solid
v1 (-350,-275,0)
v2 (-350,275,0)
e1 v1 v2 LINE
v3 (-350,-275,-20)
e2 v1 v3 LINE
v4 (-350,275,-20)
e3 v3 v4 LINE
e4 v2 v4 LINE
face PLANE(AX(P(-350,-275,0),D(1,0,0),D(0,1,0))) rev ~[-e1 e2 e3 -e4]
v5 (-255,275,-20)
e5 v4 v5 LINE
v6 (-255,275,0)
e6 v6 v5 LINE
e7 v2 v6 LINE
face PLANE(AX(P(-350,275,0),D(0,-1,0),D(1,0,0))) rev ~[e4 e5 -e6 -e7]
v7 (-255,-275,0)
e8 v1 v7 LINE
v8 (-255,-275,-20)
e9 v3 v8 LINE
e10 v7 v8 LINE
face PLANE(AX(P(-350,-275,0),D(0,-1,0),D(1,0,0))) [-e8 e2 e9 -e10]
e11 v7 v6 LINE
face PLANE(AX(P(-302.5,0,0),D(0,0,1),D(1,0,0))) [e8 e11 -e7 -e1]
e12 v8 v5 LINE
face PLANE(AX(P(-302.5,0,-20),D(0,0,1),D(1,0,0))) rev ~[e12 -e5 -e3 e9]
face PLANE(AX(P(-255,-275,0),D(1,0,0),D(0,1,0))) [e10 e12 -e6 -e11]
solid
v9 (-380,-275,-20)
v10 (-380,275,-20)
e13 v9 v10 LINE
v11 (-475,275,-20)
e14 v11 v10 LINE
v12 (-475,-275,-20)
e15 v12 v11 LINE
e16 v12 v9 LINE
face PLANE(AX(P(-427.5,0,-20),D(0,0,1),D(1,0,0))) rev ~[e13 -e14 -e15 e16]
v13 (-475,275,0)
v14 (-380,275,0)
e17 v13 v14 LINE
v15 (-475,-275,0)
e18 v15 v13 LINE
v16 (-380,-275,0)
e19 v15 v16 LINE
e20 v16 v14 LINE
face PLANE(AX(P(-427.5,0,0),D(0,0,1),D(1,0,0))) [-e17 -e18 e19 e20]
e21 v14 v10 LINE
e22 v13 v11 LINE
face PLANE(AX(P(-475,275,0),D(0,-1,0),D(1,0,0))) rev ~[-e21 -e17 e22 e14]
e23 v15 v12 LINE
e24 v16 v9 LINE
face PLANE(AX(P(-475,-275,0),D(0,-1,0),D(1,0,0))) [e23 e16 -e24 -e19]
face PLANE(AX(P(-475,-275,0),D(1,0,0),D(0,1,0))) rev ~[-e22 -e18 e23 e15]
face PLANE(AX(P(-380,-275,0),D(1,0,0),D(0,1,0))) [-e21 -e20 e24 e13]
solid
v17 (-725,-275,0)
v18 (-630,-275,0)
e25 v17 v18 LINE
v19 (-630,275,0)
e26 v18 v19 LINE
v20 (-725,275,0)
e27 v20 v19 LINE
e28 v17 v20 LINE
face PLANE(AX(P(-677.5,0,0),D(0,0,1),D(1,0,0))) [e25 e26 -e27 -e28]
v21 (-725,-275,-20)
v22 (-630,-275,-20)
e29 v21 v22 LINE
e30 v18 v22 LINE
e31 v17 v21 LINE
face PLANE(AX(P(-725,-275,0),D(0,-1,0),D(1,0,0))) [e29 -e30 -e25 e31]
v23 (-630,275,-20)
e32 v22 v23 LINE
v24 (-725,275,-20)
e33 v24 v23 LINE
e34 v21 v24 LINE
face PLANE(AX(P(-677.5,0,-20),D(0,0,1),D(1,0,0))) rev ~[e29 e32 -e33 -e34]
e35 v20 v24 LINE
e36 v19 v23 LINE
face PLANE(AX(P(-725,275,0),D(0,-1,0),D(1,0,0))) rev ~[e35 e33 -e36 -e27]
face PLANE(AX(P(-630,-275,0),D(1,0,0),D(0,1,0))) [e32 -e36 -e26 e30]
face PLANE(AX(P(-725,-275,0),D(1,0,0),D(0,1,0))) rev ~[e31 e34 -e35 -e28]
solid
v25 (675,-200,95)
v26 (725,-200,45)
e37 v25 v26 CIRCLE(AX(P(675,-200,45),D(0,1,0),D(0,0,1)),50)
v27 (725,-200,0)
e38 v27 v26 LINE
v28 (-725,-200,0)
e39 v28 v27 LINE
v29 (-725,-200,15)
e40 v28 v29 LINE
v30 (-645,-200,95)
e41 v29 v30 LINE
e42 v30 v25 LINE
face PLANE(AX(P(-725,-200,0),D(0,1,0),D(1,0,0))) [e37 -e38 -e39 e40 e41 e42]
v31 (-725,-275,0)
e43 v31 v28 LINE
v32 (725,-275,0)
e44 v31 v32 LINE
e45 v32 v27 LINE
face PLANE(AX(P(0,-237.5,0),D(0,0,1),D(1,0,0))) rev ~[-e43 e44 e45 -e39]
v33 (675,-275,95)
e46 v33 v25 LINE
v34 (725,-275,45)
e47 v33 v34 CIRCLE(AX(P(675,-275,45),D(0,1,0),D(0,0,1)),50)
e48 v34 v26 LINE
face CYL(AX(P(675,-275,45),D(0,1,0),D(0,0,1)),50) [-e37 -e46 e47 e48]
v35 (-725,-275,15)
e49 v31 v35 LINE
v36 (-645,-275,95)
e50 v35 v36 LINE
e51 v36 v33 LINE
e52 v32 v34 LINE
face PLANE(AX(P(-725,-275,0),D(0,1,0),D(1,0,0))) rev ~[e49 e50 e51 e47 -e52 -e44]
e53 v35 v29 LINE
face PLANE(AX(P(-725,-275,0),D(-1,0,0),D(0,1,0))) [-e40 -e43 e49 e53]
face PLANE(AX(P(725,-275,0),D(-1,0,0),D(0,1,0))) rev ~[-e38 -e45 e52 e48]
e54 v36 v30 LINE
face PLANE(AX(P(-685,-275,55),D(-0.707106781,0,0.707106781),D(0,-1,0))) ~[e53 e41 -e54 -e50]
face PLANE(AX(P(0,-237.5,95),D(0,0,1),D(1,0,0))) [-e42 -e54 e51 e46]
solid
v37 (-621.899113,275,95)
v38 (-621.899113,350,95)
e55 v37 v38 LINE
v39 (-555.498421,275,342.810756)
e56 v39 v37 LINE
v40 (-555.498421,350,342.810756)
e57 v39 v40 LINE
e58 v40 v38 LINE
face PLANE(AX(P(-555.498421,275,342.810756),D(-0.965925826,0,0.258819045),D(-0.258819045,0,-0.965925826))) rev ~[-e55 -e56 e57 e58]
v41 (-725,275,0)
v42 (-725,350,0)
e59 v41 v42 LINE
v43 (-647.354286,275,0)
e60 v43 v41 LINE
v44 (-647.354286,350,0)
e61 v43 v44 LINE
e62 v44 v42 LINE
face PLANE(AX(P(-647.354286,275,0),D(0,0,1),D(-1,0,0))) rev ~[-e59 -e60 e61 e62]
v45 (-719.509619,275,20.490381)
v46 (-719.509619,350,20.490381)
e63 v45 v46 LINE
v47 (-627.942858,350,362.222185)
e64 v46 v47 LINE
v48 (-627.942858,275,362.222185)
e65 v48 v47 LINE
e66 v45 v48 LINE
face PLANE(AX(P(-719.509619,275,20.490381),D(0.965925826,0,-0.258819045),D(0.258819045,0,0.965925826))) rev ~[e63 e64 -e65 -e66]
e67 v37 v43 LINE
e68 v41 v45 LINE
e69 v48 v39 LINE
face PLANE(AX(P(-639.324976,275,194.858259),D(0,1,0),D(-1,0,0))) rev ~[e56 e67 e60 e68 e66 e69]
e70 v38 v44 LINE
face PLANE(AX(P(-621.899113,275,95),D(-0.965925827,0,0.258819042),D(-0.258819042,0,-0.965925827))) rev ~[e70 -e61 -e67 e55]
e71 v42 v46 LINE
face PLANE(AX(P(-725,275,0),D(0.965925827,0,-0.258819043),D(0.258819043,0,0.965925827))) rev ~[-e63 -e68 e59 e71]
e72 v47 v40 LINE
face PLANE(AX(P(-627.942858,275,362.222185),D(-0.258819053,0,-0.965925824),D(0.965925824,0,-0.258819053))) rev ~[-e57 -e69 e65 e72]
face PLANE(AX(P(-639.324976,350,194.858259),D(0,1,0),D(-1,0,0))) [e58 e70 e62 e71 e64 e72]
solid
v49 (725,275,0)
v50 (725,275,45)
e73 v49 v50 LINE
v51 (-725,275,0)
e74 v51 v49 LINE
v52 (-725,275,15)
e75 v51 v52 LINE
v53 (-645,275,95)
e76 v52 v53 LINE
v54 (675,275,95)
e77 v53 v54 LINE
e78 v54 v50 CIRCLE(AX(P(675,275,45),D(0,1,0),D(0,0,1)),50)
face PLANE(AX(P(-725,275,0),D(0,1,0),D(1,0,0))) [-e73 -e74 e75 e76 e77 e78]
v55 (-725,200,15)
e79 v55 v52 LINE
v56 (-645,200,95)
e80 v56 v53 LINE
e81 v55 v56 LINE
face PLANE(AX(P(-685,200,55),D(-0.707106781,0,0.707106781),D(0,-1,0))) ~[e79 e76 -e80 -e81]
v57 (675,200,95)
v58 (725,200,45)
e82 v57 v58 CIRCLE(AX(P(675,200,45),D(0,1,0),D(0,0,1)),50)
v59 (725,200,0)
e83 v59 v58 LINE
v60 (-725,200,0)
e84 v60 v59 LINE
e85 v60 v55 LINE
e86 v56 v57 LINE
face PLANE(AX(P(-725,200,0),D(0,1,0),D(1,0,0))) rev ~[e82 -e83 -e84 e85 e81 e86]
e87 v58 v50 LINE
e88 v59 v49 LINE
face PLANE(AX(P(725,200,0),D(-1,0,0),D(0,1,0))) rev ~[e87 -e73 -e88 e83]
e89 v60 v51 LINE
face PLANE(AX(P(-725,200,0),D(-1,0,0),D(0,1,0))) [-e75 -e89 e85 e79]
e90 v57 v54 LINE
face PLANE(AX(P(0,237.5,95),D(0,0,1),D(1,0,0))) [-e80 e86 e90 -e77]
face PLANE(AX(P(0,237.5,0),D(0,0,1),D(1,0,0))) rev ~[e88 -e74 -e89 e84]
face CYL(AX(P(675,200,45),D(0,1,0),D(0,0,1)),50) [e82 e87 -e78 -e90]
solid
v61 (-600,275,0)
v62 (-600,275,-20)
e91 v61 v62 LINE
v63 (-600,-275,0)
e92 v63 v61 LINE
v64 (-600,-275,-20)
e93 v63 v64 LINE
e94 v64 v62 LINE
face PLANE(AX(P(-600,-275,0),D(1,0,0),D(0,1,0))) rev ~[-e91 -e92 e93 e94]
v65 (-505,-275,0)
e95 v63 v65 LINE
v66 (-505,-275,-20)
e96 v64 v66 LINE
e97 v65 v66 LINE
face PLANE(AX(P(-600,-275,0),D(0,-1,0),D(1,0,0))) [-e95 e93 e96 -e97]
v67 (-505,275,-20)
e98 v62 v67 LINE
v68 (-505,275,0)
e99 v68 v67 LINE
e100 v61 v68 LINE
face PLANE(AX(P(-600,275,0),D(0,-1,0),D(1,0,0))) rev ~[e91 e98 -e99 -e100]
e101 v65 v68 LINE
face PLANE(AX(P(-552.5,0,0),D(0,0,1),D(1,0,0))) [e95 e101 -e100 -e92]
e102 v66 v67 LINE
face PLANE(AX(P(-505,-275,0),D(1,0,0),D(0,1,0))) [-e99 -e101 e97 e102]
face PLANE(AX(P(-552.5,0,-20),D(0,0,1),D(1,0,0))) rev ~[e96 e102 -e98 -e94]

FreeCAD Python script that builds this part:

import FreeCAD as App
import Part
import Sketcher
from FreeCAD import Vector
Q = App.Units.Quantity


def edges_at(feature, points):
    """Names of the edges that pass closest to the given points."""
    edges = feature.Shape.Edges
    near = lambda p: min(range(len(edges)), key=lambda i: edges[i].distToShape(Part.Vertex(*p))[0])
    return sorted({f"Edge{near(p) + 1}" for p in points})

doc = App.newDocument("Part")
body = doc.addObject("PartDesign::Body", "Body")
body.AllowCompound = True

# Sketch on XY plane
sketch1 = body.newObject("Sketcher::SketchObject", "Sketch")
sketch1.AttachmentSupport = (doc.getObject("XY_Plane"), [""])
sketch1.MapMode = "FlatFace"
sketch1.addGeometry([
    Part.LineSegment(Vector(-725, 275, 0), Vector(-725, 200, 0)),  # 0
    Part.LineSegment(Vector(-725, 200, 0), Vector(725, 200, 0)),  # 1
    Part.LineSegment(Vector(725, 200, 0), Vector(725, 275, 0)),  # 2
    Part.LineSegment(Vector(725, 275, 0), Vector(-725, 275, 0)),  # 3
    Part.LineSegment(Vector(-725, -200, 0), Vector(-725, -275, 0)),  # 4
    Part.LineSegment(Vector(-725, -275, 0), Vector(725, -275, 0)),  # 5
    Part.LineSegment(Vector(725, -275, 0), Vector(725, -200, 0)),  # 6
    Part.LineSegment(Vector(725, -200, 0), Vector(-725, -200, 0)),  # 7
], False)
sketch1.addConstraint([
    Sketcher.Constraint("Coincident", 0, 2, 1, 1),
    Sketcher.Constraint("Coincident", 1, 2, 2, 1),
    Sketcher.Constraint("Coincident", 2, 2, 3, 1),
    Sketcher.Constraint("Coincident", 3, 2, 0, 1),
    Sketcher.Constraint("Coincident", 4, 2, 5, 1),
    Sketcher.Constraint("Coincident", 5, 2, 6, 1),
    Sketcher.Constraint("Coincident", 6, 2, 7, 1),
    Sketcher.Constraint("Coincident", 7, 2, 4, 1),
    Sketcher.Constraint("Vertical", 0),
    Sketcher.Constraint("Horizontal", 1),
    Sketcher.Constraint("Vertical", 2),
    Sketcher.Constraint("Horizontal", 3),
    Sketcher.Constraint("Vertical", 4),
    Sketcher.Constraint("Horizontal", 5),
    Sketcher.Constraint("Vertical", 6),
    Sketcher.Constraint("Horizontal", 7),
    Sketcher.Constraint("Symmetric", 2, 2, 4, 2, -1, 1),
    Sketcher.Constraint("Symmetric", 0, 2, 6, 2, -1, 1),
    Sketcher.Constraint("Vertical", 3, 2, 4, 2),
    Sketcher.Constraint("DistanceX", 1, 1, 1, 2, 1450.0),
    Sketcher.Constraint("DistanceY", 0, 2, 0, 1, 75.0),
    Sketcher.Constraint("DistanceY", -1, 1, 0, 2, 200.0),
])
pad1 = body.newObject("PartDesign::Pad", "Pad")
pad1.Profile = sketch1
pad1.Length = 95
doc.recompute()

chamfer = body.newObject("PartDesign::Chamfer", "Chamfer")
chamfer.Base = (pad1, edges_at(pad1, [(-725, 237.5, 95), (-725, -237.5, 95)]))
chamfer.Size = 80
doc.recompute()

fillet = body.newObject("PartDesign::Fillet", "Fillet")
fillet.Base = (chamfer, edges_at(chamfer, [(725, 237.5, 95), (725, -237.5, 95)]))
fillet.Radius = 50
body2 = doc.addObject("PartDesign::Body", "Body001")
body2.AllowCompound = True

# Sketch on XY plane
sketch2 = body2.newObject("Sketcher::SketchObject", "Sketch001")
sketch2.AttachmentSupport = (doc.getObject("XY_Plane001"), [""])
sketch2.MapMode = "FlatFace"
sketch2.addGeometry([
    Part.LineSegment(Vector(-725, 275, 0), Vector(-725, -275, 0)),  # 0
    Part.LineSegment(Vector(-725, -275, 0), Vector(-630, -275, 0)),  # 1
    Part.LineSegment(Vector(-630, -275, 0), Vector(-630, 275, 0)),  # 2
    Part.LineSegment(Vector(-630, 275, 0), Vector(-725, 275, 0)),  # 3
    Part.LineSegment(Vector(-600, 275, 0), Vector(-600, -275, 0)),  # 4
    Part.LineSegment(Vector(-600, -275, 0), Vector(-505, -275, 0)),  # 5
    Part.LineSegment(Vector(-505, -275, 0), Vector(-505, 275, 0)),  # 6
    Part.LineSegment(Vector(-505, 275, 0), Vector(-600, 275, 0)),  # 7
    Part.LineSegment(Vector(-475, 275, 0), Vector(-475, -275, 0)),  # 8
    Part.LineSegment(Vector(-475, -275, 0), Vector(-380, -275, 0)),  # 9
    Part.LineSegment(Vector(-380, -275, 0), Vector(-380, 275, 0)),  # 10
    Part.LineSegment(Vector(-380, 275, 0), Vector(-475, 275, 0)),  # 11
    Part.LineSegment(Vector(-350, 275, 0), Vector(-350, -275, 0)),  # 12
    Part.LineSegment(Vector(-350, -275, 0), Vector(-255, -275, 0)),  # 13
    Part.LineSegment(Vector(-255, -275, 0), Vector(-255, 275, 0)),  # 14
    Part.LineSegment(Vector(-255, 275, 0), Vector(-350, 275, 0)),  # 15
], False)
sketch2.addConstraint([
    Sketcher.Constraint("Coincident", 0, 2, 1, 1),
    Sketcher.Constraint("Coincident", 1, 2, 2, 1),
    Sketcher.Constraint("Coincident", 2, 2, 3, 1),
    Sketcher.Constraint("Coincident", 3, 2, 0, 1),
    Sketcher.Constraint("Coincident", 4, 2, 5, 1),
    Sketcher.Constraint("Coincident", 5, 2, 6, 1),
    Sketcher.Constraint("Coincident", 6, 2, 7, 1),
    Sketcher.Constraint("Coincident", 7, 2, 4, 1),
    Sketcher.Constraint("Coincident", 8, 2, 9, 1),
    Sketcher.Constraint("Coincident", 9, 2, 10, 1),
    Sketcher.Constraint("Coincident", 10, 2, 11, 1),
    Sketcher.Constraint("Coincident", 11, 2, 8, 1),
    Sketcher.Constraint("Coincident", 12, 2, 13, 1),
    Sketcher.Constraint("Coincident", 13, 2, 14, 1),
    Sketcher.Constraint("Coincident", 14, 2, 15, 1),
    Sketcher.Constraint("Coincident", 15, 2, 12, 1),
    Sketcher.Constraint("Vertical", 0),
    Sketcher.Constraint("Horizontal", 1),
    Sketcher.Constraint("Vertical", 2),
    Sketcher.Constraint("Horizontal", 3),
    Sketcher.Constraint("Vertical", 4),
    Sketcher.Constraint("Horizontal", 5),
    Sketcher.Constraint("Vertical", 6),
    Sketcher.Constraint("Horizontal", 7),
    Sketcher.Constraint("Vertical", 8),
    Sketcher.Constraint("Horizontal", 9),
    Sketcher.Constraint("Vertical", 10),
    Sketcher.Constraint("Horizontal", 11),
    Sketcher.Constraint("Vertical", 12),
    Sketcher.Constraint("Horizontal", 13),
    Sketcher.Constraint("Vertical", 14),
    Sketcher.Constraint("Horizontal", 15),
    Sketcher.Constraint("Horizontal", 1, 2, 4, 2),
    Sketcher.Constraint("Horizontal", 3, 2, 6, 2),
    Sketcher.Constraint("Horizontal", 5, 2, 8, 2),
    Sketcher.Constraint("Horizontal", 7, 2, 10, 2),
    Sketcher.Constraint("Horizontal", 9, 2, 12, 2),
    Sketcher.Constraint("Horizontal", 11, 2, 14, 2),
    Sketcher.Constraint("Equal", 3, 5),
    Sketcher.Constraint("Equal", 7, 9),
    Sketcher.Constraint("Equal", 11, 13),
    Sketcher.Constraint("DistanceX", 1, 1, 1, 2, 95.0),
    Sketcher.Constraint("DistanceY", 0, 2, 0, 1, 550.0),
    Sketcher.Constraint("DistanceX", 0, 2, -1, 1, 725.0),
    Sketcher.Constraint("DistanceY", 0, 2, -1, 1, 275.0),
    Sketcher.Constraint("DistanceX", 4, 2, -1, 1, 600.0),
    Sketcher.Constraint("DistanceX", 8, 2, -1, 1, 475.0),
    Sketcher.Constraint("DistanceX", 12, 2, -1, 1, 350.0),
])
pad2 = body2.newObject("PartDesign::Pad", "Pad001")
pad2.Profile = sketch2
pad2.Length = 20
pad2.Reversed = True
body3 = doc.addObject("PartDesign::Body", "Body002")

# Sketch on XZ plane
sketch3 = body3.newObject("Sketcher::SketchObject", "Sketch002")
sketch3.AttachmentSupport = (doc.getObject("XZ_Plane002"), [""])
sketch3.MapMode = "FlatFace"
sketch3.AttachmentOffset = App.Placement(Vector(0, 0, -275), App.Rotation())
sketch3.addGeometry([
    Part.LineSegment(Vector(-720, 20, 0), Vector(-628, 362, 0)),  # 0
    Part.LineSegment(Vector(-628, 362, 0), Vector(-555, 343, 0)),  # 1
    Part.LineSegment(Vector(-555, 343, 0), Vector(-622, 95, 0)),  # 2
    Part.LineSegment(Vector(-622, 95, 0), Vector(-647, 0, 0)),  # 3
    Part.LineSegment(Vector(-647, 0, 0), Vector(-725, 0, 0)),  # 4
    Part.LineSegment(Vector(-725, 0, 0), Vector(-720, 20, 0)),  # 5
], False)
sketch3.addConstraint([
    Sketcher.Constraint("Coincident", 0, 2, 1, 1),
    Sketcher.Constraint("Coincident", 1, 2, 2, 1),
    Sketcher.Constraint("Coincident", 2, 2, 3, 1),
    Sketcher.Constraint("Coincident", 3, 2, 4, 1),
    Sketcher.Constraint("Coincident", 4, 2, 5, 1),
    Sketcher.Constraint("Coincident", 5, 2, 0, 1),
    Sketcher.Constraint("Horizontal", 4),
    Sketcher.Constraint("PointOnObject", 3, 2, -1),
    Sketcher.Constraint("Perpendicular", 0, 1),
    Sketcher.Constraint("Perpendicular", 1, 2),
    Sketcher.Constraint("Parallel", 2, 3),
    Sketcher.Constraint("Parallel", 3, 5),
    Sketcher.Constraint("Angle", 0, Q("75 deg")),
    Sketcher.Constraint("Distance", 1, 75.0),
    Sketcher.Constraint("DistanceY", -1, 1, 2, 2, 95.0),
    Sketcher.Constraint("DistanceX", 4, 2, -1, 1, 725.0),
    Sketcher.Constraint("DistanceX", 5, 2, 1, 2, 164.011198),
    Sketcher.Constraint("DistanceX", 0, 2, -1, 1, 627.942858),
])
pad3 = body3.newObject("PartDesign::Pad", "Pad002")
pad3.Profile = sketch3
pad3.Length = 75
pad3.Reversed = True

doc.recompute()
